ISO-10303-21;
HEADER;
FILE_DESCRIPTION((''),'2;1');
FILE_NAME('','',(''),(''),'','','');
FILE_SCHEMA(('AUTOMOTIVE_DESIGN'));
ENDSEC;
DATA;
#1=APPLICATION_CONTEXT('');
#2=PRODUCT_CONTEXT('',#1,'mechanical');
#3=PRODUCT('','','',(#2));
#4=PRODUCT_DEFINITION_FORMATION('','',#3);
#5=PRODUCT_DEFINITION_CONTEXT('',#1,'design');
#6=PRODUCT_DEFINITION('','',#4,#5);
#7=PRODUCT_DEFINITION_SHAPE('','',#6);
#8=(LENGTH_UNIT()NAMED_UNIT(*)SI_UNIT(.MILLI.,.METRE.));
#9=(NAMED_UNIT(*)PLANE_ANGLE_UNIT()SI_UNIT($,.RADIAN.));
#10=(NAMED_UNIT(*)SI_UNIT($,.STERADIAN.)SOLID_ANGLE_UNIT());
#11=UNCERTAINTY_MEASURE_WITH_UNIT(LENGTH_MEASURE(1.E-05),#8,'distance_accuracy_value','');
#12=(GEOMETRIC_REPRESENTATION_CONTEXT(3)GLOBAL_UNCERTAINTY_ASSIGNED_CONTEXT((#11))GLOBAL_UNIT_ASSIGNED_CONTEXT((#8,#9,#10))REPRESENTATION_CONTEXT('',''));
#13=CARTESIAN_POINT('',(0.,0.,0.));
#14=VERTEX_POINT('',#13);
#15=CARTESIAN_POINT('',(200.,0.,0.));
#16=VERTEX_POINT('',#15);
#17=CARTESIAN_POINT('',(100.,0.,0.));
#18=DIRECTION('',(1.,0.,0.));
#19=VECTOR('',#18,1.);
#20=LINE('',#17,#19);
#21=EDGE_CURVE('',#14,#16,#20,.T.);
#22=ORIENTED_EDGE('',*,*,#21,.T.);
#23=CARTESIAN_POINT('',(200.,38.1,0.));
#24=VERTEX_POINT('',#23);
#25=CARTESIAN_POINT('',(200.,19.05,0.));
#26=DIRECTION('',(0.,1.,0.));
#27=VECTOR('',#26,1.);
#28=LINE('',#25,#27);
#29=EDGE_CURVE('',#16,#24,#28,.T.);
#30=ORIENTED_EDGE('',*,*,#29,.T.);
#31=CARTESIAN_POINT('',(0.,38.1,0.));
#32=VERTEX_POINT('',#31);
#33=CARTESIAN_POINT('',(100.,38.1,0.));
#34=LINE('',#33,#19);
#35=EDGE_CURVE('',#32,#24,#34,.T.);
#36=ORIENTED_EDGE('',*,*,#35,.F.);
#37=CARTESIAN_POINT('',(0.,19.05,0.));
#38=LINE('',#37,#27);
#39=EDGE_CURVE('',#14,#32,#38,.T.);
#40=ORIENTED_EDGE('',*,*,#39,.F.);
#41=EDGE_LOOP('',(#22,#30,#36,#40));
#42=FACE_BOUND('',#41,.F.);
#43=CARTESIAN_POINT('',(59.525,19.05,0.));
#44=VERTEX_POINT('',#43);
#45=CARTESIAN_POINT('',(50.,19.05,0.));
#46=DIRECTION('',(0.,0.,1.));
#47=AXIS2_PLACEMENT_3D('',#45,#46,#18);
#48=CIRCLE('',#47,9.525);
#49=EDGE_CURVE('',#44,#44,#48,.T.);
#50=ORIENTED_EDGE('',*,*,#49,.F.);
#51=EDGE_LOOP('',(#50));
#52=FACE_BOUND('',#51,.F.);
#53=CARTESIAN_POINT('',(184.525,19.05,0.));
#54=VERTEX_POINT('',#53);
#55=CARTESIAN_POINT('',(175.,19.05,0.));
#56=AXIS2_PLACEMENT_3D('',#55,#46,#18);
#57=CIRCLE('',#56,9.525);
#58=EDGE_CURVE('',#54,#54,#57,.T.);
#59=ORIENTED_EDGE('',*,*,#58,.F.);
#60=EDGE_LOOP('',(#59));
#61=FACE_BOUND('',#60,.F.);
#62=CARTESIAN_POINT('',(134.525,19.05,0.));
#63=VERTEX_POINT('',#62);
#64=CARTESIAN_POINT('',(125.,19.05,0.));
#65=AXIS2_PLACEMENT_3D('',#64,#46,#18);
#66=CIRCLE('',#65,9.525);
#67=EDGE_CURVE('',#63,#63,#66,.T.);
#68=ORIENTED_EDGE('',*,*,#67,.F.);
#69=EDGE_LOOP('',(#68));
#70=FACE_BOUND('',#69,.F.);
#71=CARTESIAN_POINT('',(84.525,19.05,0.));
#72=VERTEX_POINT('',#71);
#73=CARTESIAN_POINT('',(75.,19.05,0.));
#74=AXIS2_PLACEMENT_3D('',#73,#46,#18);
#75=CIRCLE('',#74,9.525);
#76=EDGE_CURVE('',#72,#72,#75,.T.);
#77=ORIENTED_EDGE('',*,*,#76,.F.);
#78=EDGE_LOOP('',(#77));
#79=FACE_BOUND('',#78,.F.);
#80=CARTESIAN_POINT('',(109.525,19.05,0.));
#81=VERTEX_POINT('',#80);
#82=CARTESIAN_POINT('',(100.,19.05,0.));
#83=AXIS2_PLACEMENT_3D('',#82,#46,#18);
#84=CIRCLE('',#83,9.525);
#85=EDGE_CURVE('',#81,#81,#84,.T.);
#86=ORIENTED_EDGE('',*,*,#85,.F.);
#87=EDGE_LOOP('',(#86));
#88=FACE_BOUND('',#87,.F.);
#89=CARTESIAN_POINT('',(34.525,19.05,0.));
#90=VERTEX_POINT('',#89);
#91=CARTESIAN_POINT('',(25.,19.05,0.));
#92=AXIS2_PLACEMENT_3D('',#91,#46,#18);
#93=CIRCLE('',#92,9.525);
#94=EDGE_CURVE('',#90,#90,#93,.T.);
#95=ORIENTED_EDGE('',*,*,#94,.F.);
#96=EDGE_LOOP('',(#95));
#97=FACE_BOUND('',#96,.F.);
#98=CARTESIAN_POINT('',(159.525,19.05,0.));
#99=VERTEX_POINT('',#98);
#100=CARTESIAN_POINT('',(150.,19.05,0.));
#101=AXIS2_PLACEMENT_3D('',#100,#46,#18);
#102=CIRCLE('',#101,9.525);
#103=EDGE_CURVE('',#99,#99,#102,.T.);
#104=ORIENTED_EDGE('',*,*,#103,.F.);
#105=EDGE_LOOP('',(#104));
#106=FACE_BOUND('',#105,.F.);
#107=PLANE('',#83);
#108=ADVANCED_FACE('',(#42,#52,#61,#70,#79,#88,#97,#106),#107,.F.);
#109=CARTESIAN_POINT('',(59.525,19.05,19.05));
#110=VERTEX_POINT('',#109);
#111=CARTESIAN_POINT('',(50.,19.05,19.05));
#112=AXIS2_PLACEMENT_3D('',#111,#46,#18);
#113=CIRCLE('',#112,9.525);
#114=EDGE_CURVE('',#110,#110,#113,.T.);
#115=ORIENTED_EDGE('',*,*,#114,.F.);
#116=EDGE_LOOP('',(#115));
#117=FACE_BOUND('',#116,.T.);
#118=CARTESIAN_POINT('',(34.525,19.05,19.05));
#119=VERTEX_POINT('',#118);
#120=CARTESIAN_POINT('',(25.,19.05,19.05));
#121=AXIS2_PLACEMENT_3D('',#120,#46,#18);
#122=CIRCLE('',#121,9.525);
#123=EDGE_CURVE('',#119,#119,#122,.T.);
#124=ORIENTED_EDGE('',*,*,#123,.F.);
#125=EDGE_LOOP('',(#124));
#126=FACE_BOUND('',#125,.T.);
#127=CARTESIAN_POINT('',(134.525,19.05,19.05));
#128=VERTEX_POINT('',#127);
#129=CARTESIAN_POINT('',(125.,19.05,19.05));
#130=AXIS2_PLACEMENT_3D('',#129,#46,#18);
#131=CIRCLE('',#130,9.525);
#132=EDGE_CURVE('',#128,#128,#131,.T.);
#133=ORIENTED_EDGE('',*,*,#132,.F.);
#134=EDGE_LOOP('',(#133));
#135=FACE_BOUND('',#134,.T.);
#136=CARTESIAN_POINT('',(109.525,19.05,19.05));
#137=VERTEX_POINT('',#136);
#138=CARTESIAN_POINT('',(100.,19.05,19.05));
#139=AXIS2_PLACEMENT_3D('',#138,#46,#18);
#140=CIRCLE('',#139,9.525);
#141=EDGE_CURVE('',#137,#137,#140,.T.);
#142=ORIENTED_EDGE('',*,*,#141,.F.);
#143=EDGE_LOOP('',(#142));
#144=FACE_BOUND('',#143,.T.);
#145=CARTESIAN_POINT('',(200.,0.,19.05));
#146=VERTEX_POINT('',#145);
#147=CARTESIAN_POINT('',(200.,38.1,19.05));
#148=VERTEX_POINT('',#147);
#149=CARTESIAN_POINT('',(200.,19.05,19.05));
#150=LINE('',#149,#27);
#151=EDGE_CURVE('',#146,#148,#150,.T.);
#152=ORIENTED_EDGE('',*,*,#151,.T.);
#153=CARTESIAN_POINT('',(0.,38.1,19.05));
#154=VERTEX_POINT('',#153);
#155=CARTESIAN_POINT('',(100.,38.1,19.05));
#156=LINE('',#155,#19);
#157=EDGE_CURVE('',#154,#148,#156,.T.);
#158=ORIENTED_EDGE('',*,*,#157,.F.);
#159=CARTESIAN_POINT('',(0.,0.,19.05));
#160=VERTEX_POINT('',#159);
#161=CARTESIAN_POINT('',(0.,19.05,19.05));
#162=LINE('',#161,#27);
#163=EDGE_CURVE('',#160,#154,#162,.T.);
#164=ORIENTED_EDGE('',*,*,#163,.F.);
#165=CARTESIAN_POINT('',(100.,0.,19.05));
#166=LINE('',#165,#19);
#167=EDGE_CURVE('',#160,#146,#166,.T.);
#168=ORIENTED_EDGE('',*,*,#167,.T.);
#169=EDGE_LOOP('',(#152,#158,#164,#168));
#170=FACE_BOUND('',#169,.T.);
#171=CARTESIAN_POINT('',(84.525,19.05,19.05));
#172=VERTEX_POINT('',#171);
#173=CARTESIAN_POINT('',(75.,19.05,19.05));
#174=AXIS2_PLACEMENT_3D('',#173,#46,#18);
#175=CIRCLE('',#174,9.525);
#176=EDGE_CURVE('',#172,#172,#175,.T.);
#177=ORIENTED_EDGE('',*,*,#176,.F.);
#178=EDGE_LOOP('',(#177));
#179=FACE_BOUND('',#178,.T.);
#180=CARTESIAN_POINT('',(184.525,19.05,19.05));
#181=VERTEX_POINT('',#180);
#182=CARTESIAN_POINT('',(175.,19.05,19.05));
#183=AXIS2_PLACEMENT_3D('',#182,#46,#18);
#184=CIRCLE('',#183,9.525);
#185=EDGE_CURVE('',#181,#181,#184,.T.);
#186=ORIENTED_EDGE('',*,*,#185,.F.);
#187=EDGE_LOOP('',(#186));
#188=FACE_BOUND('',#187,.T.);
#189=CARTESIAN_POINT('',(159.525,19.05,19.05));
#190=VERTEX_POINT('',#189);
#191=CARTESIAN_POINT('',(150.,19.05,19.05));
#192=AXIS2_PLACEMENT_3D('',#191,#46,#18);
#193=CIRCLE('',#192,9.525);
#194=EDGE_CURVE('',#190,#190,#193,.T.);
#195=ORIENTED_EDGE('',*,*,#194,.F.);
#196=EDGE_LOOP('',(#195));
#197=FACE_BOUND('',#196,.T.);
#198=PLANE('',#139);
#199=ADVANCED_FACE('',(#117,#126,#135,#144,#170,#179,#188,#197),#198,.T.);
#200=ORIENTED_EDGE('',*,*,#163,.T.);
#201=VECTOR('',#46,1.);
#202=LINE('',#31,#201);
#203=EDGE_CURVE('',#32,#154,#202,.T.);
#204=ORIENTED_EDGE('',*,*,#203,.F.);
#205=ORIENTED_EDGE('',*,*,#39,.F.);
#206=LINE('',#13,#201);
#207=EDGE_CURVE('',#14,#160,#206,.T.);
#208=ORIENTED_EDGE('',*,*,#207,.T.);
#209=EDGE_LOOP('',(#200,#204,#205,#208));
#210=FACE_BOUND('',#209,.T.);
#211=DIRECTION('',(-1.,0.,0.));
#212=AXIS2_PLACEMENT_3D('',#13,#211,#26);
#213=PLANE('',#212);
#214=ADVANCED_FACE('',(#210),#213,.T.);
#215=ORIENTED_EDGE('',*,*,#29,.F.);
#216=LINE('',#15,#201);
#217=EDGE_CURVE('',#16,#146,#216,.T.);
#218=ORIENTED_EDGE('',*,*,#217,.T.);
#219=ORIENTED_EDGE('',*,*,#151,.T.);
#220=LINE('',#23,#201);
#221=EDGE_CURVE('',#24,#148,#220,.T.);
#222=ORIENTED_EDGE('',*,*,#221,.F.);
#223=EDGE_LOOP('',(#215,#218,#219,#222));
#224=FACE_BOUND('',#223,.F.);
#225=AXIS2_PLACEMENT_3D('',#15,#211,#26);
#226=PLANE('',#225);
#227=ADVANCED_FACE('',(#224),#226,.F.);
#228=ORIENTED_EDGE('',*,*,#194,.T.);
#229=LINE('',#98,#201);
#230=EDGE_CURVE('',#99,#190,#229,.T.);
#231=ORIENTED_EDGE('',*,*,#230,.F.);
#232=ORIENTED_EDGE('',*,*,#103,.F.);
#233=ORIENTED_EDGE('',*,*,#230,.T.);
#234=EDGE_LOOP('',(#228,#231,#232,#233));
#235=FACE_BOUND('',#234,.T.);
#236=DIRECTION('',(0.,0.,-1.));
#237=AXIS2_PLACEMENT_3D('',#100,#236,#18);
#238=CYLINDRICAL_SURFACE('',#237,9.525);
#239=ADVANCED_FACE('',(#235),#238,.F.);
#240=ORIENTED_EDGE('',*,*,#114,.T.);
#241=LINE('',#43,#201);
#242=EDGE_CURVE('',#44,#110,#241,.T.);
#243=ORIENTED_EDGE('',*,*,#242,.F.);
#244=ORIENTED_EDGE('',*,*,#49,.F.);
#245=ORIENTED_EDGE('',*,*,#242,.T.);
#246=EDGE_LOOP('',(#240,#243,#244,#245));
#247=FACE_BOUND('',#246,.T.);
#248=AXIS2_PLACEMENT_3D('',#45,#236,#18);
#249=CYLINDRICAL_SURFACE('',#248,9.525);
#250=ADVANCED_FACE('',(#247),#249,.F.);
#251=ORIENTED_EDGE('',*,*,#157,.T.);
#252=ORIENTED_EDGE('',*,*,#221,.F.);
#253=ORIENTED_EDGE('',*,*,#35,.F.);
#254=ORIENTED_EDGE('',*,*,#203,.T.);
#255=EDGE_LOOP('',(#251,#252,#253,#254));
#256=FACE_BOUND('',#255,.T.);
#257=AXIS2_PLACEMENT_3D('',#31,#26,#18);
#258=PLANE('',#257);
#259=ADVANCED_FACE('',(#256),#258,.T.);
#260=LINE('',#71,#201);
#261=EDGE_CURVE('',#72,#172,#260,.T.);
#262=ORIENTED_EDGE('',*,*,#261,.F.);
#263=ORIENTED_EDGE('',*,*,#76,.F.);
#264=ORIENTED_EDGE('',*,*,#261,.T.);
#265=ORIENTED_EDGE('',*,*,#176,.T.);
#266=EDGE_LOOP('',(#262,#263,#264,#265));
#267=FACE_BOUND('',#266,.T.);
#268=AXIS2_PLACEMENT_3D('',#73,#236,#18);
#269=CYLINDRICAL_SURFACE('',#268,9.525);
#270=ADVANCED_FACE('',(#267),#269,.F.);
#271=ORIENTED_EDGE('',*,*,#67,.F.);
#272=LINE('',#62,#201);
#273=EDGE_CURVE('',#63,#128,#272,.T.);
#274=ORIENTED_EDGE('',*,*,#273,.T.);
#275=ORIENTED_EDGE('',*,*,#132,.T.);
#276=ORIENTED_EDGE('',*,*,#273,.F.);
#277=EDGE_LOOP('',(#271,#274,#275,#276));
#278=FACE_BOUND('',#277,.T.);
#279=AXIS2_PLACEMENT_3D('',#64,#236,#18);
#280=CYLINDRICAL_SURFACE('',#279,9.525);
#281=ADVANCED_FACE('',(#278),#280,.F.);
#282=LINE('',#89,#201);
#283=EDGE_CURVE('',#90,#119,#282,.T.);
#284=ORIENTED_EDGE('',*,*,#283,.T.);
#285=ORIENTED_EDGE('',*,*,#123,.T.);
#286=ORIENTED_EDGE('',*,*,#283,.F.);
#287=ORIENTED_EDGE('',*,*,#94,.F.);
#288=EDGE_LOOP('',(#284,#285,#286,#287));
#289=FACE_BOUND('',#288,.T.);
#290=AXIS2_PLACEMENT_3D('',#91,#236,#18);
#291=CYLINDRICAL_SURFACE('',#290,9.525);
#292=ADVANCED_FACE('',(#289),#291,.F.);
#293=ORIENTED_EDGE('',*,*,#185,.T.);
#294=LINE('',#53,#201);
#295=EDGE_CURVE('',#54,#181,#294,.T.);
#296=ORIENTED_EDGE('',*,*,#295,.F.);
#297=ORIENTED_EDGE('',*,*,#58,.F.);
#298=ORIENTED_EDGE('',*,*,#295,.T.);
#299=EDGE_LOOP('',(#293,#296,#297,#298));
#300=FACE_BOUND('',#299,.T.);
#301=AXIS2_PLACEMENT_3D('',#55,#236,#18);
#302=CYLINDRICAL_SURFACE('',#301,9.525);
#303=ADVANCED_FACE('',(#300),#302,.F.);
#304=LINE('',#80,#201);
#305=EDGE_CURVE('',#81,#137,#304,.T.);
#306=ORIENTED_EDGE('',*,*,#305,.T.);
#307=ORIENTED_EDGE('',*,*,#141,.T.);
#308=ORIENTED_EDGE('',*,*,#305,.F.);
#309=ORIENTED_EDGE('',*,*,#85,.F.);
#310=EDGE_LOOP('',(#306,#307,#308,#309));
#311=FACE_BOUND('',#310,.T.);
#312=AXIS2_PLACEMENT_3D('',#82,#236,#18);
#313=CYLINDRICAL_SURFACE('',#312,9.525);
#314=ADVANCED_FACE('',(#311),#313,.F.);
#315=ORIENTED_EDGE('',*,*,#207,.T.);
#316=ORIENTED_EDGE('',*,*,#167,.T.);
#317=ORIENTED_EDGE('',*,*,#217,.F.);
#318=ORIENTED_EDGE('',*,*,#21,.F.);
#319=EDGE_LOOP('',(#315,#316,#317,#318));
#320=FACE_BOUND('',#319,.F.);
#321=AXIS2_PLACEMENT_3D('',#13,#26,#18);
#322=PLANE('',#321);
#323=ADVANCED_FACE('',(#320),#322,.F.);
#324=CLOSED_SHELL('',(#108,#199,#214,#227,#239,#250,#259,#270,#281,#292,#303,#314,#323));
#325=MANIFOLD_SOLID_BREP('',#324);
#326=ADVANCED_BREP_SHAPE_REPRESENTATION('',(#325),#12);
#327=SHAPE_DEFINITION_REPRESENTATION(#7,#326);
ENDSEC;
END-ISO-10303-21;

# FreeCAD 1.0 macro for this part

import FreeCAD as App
import Part
import Sketcher

V = App.Vector
Q = App.Units.Quantity

doc = App.newDocument("Part")
body = doc.addObject("PartDesign::Body", "Body")

sketch1 = body.newObject("Sketcher::SketchObject", "Sketch")
sketch1.AttachmentSupport = (doc.getObject("XY_Plane"), [""])
sketch1.MapMode = "FlatFace"
sketch1.addGeometry([
    Part.LineSegment(V(0, 38, 0), V(0, 0, 0)),
    Part.LineSegment(V(0, 0, 0), V(200, 0, 0)),
    Part.LineSegment(V(200, 0, 0), V(200, 38, 0)),
    Part.LineSegment(V(200, 38, 0), V(0, 38, 0)),
    Part.Circle(V(25, 19, 0), V(0, 0, 1), 10),
    Part.Circle(V(50, 19, 0), V(0, 0, 1), 10),
    Part.Circle(V(75, 19, 0), V(0, 0, 1), 10),
    Part.Circle(V(100, 19, 0), V(0, 0, 1), 10),
    Part.Circle(V(125, 19, 0), V(0, 0, 1), 10),
    Part.Circle(V(150, 19, 0), V(0, 0, 1), 10),
    Part.Circle(V(175, 19, 0), V(0, 0, 1), 10),
], False)
sketch1.addConstraint([
    Sketcher.Constraint("Coincident", 0, 2, 1, 1),
    Sketcher.Constraint("Coincident", 1, 2, 2, 1),
    Sketcher.Constraint("Coincident", 2, 2, 3, 1),
    Sketcher.Constraint("Coincident", 3, 2, 0, 1),
    Sketcher.Constraint("Vertical", 0),
    Sketcher.Constraint("Horizontal", 1),
    Sketcher.Constraint("Vertical", 2),
    Sketcher.Constraint("Horizontal", 3),
    Sketcher.Constraint("Coincident", 0, 2, -1, 1),
    Sketcher.Constraint("Equal", 4, 5),
    Sketcher.Constraint("Equal", 5, 6),
    Sketcher.Constraint("Equal", 6, 7),
    Sketcher.Constraint("Equal", 7, 8),
    Sketcher.Constraint("Equal", 8, 9),
    Sketcher.Constraint("Equal", 9, 10),
    Sketcher.Constraint("Horizontal", 4, 3, 5, 3),
    Sketcher.Constraint("Horizontal", 5, 3, 6, 3),
    Sketcher.Constraint("Horizontal", 6, 3, 7, 3),
    Sketcher.Constraint("Horizontal", 7, 3, 8, 3),
    Sketcher.Constraint("Horizontal", 8, 3, 9, 3),
    Sketcher.Constraint("Horizontal", 9, 3, 10, 3),
    Sketcher.Constraint("Diameter", 4, Q("0.75 in")),
    Sketcher.Constraint("DistanceY", 0, 2, 0, 1, Q("1.5 in")),
    Sketcher.Constraint("DistanceY", -1, 1, 4, 3, Q("0.75 in")),
    Sketcher.Constraint("DistanceX", 1, 1, 1, 2, 200.0),
    Sketcher.Constraint("DistanceX", -1, 1, 4, 3, 25.0),
    Sketcher.Constraint("DistanceX", -1, 1, 5, 3, 50.0),
    Sketcher.Constraint("DistanceX", -1, 1, 6, 3, 75.0),
    Sketcher.Constraint("DistanceX", -1, 1, 7, 3, 100.0),
    Sketcher.Constraint("DistanceX", -1, 1, 8, 3, 125.0),
    Sketcher.Constraint("DistanceX", -1, 1, 9, 3, 150.0),
    Sketcher.Constraint("DistanceX", -1, 1, 10, 3, 175.0),
])
pad1 = body.newObject("PartDesign::Pad", "Pad")
pad1.Profile = sketch1
pad1.Length = Q("0.75 in")

doc.recompute()
